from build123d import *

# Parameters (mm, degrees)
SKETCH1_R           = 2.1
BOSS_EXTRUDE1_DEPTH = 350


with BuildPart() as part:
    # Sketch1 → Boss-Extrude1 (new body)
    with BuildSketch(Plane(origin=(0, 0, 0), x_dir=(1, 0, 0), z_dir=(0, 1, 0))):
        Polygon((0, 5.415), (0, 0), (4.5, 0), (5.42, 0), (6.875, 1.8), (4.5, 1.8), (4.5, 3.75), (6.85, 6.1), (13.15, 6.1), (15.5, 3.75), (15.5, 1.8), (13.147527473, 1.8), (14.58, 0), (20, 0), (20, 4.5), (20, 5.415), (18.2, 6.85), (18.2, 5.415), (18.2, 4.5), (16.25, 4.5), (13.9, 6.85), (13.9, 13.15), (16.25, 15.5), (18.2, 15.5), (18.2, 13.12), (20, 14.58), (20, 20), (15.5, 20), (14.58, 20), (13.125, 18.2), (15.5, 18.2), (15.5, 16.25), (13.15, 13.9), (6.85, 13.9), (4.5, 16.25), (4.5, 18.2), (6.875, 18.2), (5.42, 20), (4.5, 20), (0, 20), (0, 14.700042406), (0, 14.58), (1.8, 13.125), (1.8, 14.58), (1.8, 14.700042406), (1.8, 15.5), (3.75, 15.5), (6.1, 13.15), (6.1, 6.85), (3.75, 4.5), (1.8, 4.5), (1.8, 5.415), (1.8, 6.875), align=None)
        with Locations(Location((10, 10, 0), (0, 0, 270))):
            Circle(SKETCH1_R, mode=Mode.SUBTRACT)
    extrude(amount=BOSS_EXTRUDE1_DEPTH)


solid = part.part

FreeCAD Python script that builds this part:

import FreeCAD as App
import Part
import Sketcher

V = App.Vector

doc = App.newDocument("Part")
body = doc.addObject("PartDesign::Body", "Body")

sketch1 = body.newObject("Sketcher::SketchObject", "Sketch")
sketch1.AttachmentSupport = (doc.getObject("XZ_Plane"), [""])
sketch1.MapMode = "FlatFace"
sketch1.addGeometry([
    Part.LineSegment(V(0, -5.4, 0), V(0, 0, 0)),
    Part.LineSegment(V(0, 0, 0), V(5.4, 0, 0)),
    Part.LineSegment(V(5.4, 0, 0), V(6.9, -1.8, 0)),
    Part.LineSegment(V(6.9, -1.8, 0), V(4.5, -1.8, 0)),
    Part.LineSegment(V(4.5, -1.8, 0), V(4.5, -3.8, 0)),
    Part.LineSegment(V(4.5, -3.8, 0), V(6.8, -6.1, 0)),
    Part.LineSegment(V(6.8, -6.1, 0), V(13.2, -6.1, 0)),
    Part.LineSegment(V(13.2, -6.1, 0), V(15.5, -3.8, 0)),
    Part.LineSegment(V(15.5, -3.8, 0), V(15.5, -1.8, 0)),
    Part.LineSegment(V(15.5, -1.8, 0), V(13.1, -1.8, 0)),
    Part.LineSegment(V(13.1, -1.8, 0), V(14.6, 0, 0)),
    Part.LineSegment(V(14.6, 0, 0), V(20, 0, 0)),
    Part.LineSegment(V(20, 0, 0), V(20, -5.4, 0)),
    Part.LineSegment(V(20, -5.4, 0), V(18.2, -6.8, 0)),
    Part.LineSegment(V(18.2, -6.8, 0), V(18.2, -4.5, 0)),
    Part.LineSegment(V(18.2, -4.5, 0), V(16.2, -4.5, 0)),
    Part.LineSegment(V(16.2, -4.5, 0), V(13.9, -6.8, 0)),
    Part.LineSegment(V(13.9, -6.8, 0), V(13.9, -13.2, 0)),
    Part.LineSegment(V(13.9, -13.2, 0), V(16.2, -15.5, 0)),
    Part.LineSegment(V(16.2, -15.5, 0), V(18.2, -15.5, 0)),
    Part.LineSegment(V(18.2, -15.5, 0), V(18.2, -13.1, 0)),
    Part.LineSegment(V(18.2, -13.1, 0), V(20, -14.6, 0)),
    Part.LineSegment(V(20, -14.6, 0), V(20, -20, 0)),
    Part.LineSegment(V(20, -20, 0), V(14.6, -20, 0)),
    Part.LineSegment(V(14.6, -20, 0), V(13.1, -18.2, 0)),
    Part.LineSegment(V(13.1, -18.2, 0), V(15.5, -18.2, 0)),
    Part.LineSegment(V(15.5, -18.2, 0), V(15.5, -16.2, 0)),
    Part.LineSegment(V(15.5, -16.2, 0), V(13.2, -13.9, 0)),
    Part.LineSegment(V(13.2, -13.9, 0), V(6.8, -13.9, 0)),
    Part.LineSegment(V(6.8, -13.9, 0), V(4.5, -16.2, 0)),
    Part.LineSegment(V(4.5, -16.2, 0), V(4.5, -18.2, 0)),
    Part.LineSegment(V(4.5, -18.2, 0), V(6.9, -18.2, 0)),
    Part.LineSegment(V(6.9, -18.2, 0), V(5.4, -20, 0)),
    Part.LineSegment(V(5.4, -20, 0), V(0, -20, 0)),
    Part.LineSegment(V(0, -20, 0), V(0, -14.6, 0)),
    Part.LineSegment(V(0, -14.6, 0), V(1.8, -13.1, 0)),
    Part.LineSegment(V(1.8, -13.1, 0), V(1.8, -15.5, 0)),
    Part.LineSegment(V(1.8, -15.5, 0), V(3.8, -15.5, 0)),
    Part.LineSegment(V(3.8, -15.5, 0), V(6.1, -13.2, 0)),
    Part.LineSegment(V(6.1, -13.2, 0), V(6.1, -6.8, 0)),
    Part.LineSegment(V(6.1, -6.8, 0), V(3.8, -4.5, 0)),
    Part.LineSegment(V(3.8, -4.5, 0), V(1.8, -4.5, 0)),
    Part.LineSegment(V(1.8, -4.5, 0), V(1.8, -6.9, 0)),
    Part.LineSegment(V(1.8, -6.9, 0), V(0, -5.4, 0)),
    Part.Circle(V(10, -10, 0), V(0, 0, 1), 2.1),
], False)
sketch1.addConstraint([
    Sketcher.Constraint("Coincident", 0, 2, 1, 1),
    Sketcher.Constraint("Coincident", 1, 2, 2, 1),
    Sketcher.Constraint("Coincident", 2, 2, 3, 1),
    Sketcher.Constraint("Coincident", 3, 2, 4, 1),
    Sketcher.Constraint("Coincident", 4, 2, 5, 1),
    Sketcher.Constraint("Coincident", 5, 2, 6, 1),
    Sketcher.Constraint("Coincident", 6, 2, 7, 1),
    Sketcher.Constraint("Coincident", 7, 2, 8, 1),
    Sketcher.Constraint("Coincident", 8, 2, 9, 1),
    Sketcher.Constraint("Coincident", 9, 2, 10, 1),
    Sketcher.Constraint("Coincident", 10, 2, 11, 1),
    Sketcher.Constraint("Coincident", 11, 2, 12, 1),
    Sketcher.Constraint("Coincident", 12, 2, 13, 1),
    Sketcher.Constraint("Coincident", 13, 2, 14, 1),
    Sketcher.Constraint("Coincident", 14, 2, 15, 1),
    Sketcher.Constraint("Coincident", 15, 2, 16, 1),
    Sketcher.Constraint("Coincident", 16, 2, 17, 1),
    Sketcher.Constraint("Coincident", 17, 2, 18, 1),
    Sketcher.Constraint("Coincident", 18, 2, 19, 1),
    Sketcher.Constraint("Coincident", 19, 2, 20, 1),
    Sketcher.Constraint("Coincident", 20, 2, 21, 1),
    Sketcher.Constraint("Coincident", 21, 2, 22, 1),
    Sketcher.Constraint("Coincident", 22, 2, 23, 1),
    Sketcher.Constraint("Coincident", 23, 2, 24, 1),
    Sketcher.Constraint("Coincident", 24, 2, 25, 1),
    Sketcher.Constraint("Coincident", 25, 2, 26, 1),
    Sketcher.Constraint("Coincident", 26, 2, 27, 1),
    Sketcher.Constraint("Coincident", 27, 2, 28, 1),
    Sketcher.Constraint("Coincident", 28, 2, 29, 1),
    Sketcher.Constraint("Coincident", 29, 2, 30, 1),
    Sketcher.Constraint("Coincident", 30, 2, 31, 1),
    Sketcher.Constraint("Coincident", 31, 2, 32, 1),
    Sketcher.Constraint("Coincident", 32, 2, 33, 1),
    Sketcher.Constraint("Coincident", 33, 2, 34, 1),
    Sketcher.Constraint("Coincident", 34, 2, 35, 1),
    Sketcher.Constraint("Coincident", 35, 2, 36, 1),
    Sketcher.Constraint("Coincident", 36, 2, 37, 1),
    Sketcher.Constraint("Coincident", 37, 2, 38, 1),
    Sketcher.Constraint("Coincident", 38, 2, 39, 1),
    Sketcher.Constraint("Coincident", 39, 2, 40, 1),
    Sketcher.Constraint("Coincident", 40, 2, 41, 1),
    Sketcher.Constraint("Coincident", 41, 2, 42, 1),
    Sketcher.Constraint("Coincident", 42, 2, 43, 1),
    Sketcher.Constraint("Coincident", 43, 2, 0, 1),
    Sketcher.Constraint("Vertical", 0),
    Sketcher.Constraint("Horizontal", 1),
    Sketcher.Constraint("Horizontal", 3),
    Sketcher.Constraint("Vertical", 4),
    Sketcher.Constraint("Horizontal", 6),
    Sketcher.Constraint("Vertical", 8),
    Sketcher.Constraint("Horizontal", 9),
    Sketcher.Constraint("Horizontal", 11),
    Sketcher.Constraint("Vertical", 12),
    Sketcher.Constraint("Vertical", 14),
    Sketcher.Constraint("Horizontal", 15),
    Sketcher.Constraint("Vertical", 17),
    Sketcher.Constraint("Horizontal", 19),
    Sketcher.Constraint("Vertical", 20),
    Sketcher.Constraint("Vertical", 22),
    Sketcher.Constraint("Horizontal", 23),
    Sketcher.Constraint("Horizontal", 25),
    Sketcher.Constraint("Vertical", 26),
    Sketcher.Constraint("Horizontal", 28),
    Sketcher.Constraint("Vertical", 30),
    Sketcher.Constraint("Horizontal", 31),
    Sketcher.Constraint("Horizontal", 33),
    Sketcher.Constraint("Vertical", 34),
    Sketcher.Constraint("Vertical", 36),
    Sketcher.Constraint("Horizontal", 37),
    Sketcher.Constraint("Vertical", 39),
    Sketcher.Constraint("Horizontal", 41),
    Sketcher.Constraint("Vertical", 42),
    Sketcher.Constraint("Coincident", 0, 2, -1, 1),
    Sketcher.Constraint("PointOnObject", 10, 2, -1),
    Sketcher.Constraint("PointOnObject", 33, 2, -2),
    Sketcher.Constraint("Perpendicular", 5, 7),
    Sketcher.Constraint("Parallel", 7, 16),
    Sketcher.Constraint("Perpendicular", 16, 18),
    Sketcher.Constraint("Parallel", 2, 24),
    Sketcher.Constraint("Parallel", 18, 27),
    Sketcher.Constraint("Perpendicular", 27, 29),
    Sketcher.Constraint("Perpendicular", 24, 35),
    Sketcher.Constraint("Parallel", 29, 38),
    Sketcher.Constraint("Perpendicular", 38, 40),
    Sketcher.Constraint("Parallel", 21, 43),
    Sketcher.Constraint("Horizontal", 4, 2, 7, 2),
    Sketcher.Constraint("Horizontal", 3, 2, 8, 2),
    Sketcher.Constraint("Horizontal", 13, 2, 16, 2),
    Sketcher.Constraint("Horizontal", 26, 2, 29, 2),
    Sketcher.Constraint("Horizontal", 25, 2, 30, 2),
    Sketcher.Constraint("Horizontal", 23, 2, 32, 2),
    Sketcher.Constraint("Horizontal", 21, 2, 34, 2),
    Sketcher.Constraint("Horizontal", 19, 2, 36, 2),
    Sketcher.Constraint("Horizontal", 17, 2, 38, 2),
    Sketcher.Constraint("Horizontal", 16, 2, 39, 2),
    Sketcher.Constraint("Horizontal", 15, 2, 40, 2),
    Sketcher.Constraint("Horizontal", 12, 2, 43, 2),
    Sketcher.Constraint("Vertical", 15, 2, 18, 2),
    Sketcher.Constraint("Vertical", 14, 2, 19, 2),
    Sketcher.Constraint("Vertical", 12, 2, 21, 2),
    Sketcher.Constraint("Vertical", 10, 2, 23, 2),
    Sketcher.Constraint("Vertical", 8, 2, 25, 2),
    Sketcher.Constraint("Vertical", 6, 2, 27, 2),
    Sketcher.Constraint("Vertical", 5, 2, 28, 2),
    Sketcher.Constraint("Vertical", 4, 2, 29, 2),
    Sketcher.Constraint("Vertical", 2, 2, 31, 2),
    Sketcher.Constraint("Vertical", 1, 2, 32, 2),
    Sketcher.Constraint("Vertical", 36, 2, 41, 2),
    Sketcher.Constraint("Equal", 1, 11),
    Sketcher.Constraint("Equal", 3, 25),
    Sketcher.Constraint("Equal", 19, 37),
    Sketcher.Constraint("Equal", 41, 4),
    Sketcher.Constraint("Equal", 28, 17),
    Sketcher.Constraint("Equal", 33, 22),
    Sketcher.Constraint("Equal", 8, 26),
    Sketcher.Constraint("Equal", 31, 36),
    Sketcher.Constraint("Equal", 36, 42),
    Sketcher.Constraint("Equal", 7, 16),
    Sketcher.Constraint("Equal", 2, 24),
    Sketcher.Constraint("Equal", 32, 35),
    Sketcher.Constraint("Equal", 21, 43),
    Sketcher.Constraint("Diameter", 44, 4.2),
    Sketcher.Constraint("DistanceX", 6, 1, 6, 2, 6.3),
    Sketcher.Constraint("DistanceX", -1, 1, 44, 3, 10.0),
    Sketcher.Constraint("DistanceY", 44, 3, -1, 1, 10.0),
    Sketcher.Constraint("DistanceX", -1, 1, 11, 2, 20.0),
    Sketcher.Constraint("DistanceY", 22, 2, -1, 1, 20.0),
    Sketcher.Constraint("DistanceX", 1, 1, 1, 2, 5.42),
    Sketcher.Constraint("DistanceX", 15, 2, 15, 1, 1.95),
    Sketcher.Constraint("DistanceY", 14, 1, 14, 2, 2.35),
    Sketcher.Constraint("DistanceY", 20, 1, 20, 2, 2.38),
    Sketcher.Constraint("DistanceY", 2, 2, -1, 1, 1.8),
    Sketcher.Constraint("DistanceX", 3, 2, 3, 1, 2.375),
    Sketcher.Constraint("Distance", 10, 2.30043),
])
pad1 = body.newObject("PartDesign::Pad", "Pad")
pad1.Profile = sketch1
pad1.Length = 350
pad1.Reversed = True

doc.recompute()
